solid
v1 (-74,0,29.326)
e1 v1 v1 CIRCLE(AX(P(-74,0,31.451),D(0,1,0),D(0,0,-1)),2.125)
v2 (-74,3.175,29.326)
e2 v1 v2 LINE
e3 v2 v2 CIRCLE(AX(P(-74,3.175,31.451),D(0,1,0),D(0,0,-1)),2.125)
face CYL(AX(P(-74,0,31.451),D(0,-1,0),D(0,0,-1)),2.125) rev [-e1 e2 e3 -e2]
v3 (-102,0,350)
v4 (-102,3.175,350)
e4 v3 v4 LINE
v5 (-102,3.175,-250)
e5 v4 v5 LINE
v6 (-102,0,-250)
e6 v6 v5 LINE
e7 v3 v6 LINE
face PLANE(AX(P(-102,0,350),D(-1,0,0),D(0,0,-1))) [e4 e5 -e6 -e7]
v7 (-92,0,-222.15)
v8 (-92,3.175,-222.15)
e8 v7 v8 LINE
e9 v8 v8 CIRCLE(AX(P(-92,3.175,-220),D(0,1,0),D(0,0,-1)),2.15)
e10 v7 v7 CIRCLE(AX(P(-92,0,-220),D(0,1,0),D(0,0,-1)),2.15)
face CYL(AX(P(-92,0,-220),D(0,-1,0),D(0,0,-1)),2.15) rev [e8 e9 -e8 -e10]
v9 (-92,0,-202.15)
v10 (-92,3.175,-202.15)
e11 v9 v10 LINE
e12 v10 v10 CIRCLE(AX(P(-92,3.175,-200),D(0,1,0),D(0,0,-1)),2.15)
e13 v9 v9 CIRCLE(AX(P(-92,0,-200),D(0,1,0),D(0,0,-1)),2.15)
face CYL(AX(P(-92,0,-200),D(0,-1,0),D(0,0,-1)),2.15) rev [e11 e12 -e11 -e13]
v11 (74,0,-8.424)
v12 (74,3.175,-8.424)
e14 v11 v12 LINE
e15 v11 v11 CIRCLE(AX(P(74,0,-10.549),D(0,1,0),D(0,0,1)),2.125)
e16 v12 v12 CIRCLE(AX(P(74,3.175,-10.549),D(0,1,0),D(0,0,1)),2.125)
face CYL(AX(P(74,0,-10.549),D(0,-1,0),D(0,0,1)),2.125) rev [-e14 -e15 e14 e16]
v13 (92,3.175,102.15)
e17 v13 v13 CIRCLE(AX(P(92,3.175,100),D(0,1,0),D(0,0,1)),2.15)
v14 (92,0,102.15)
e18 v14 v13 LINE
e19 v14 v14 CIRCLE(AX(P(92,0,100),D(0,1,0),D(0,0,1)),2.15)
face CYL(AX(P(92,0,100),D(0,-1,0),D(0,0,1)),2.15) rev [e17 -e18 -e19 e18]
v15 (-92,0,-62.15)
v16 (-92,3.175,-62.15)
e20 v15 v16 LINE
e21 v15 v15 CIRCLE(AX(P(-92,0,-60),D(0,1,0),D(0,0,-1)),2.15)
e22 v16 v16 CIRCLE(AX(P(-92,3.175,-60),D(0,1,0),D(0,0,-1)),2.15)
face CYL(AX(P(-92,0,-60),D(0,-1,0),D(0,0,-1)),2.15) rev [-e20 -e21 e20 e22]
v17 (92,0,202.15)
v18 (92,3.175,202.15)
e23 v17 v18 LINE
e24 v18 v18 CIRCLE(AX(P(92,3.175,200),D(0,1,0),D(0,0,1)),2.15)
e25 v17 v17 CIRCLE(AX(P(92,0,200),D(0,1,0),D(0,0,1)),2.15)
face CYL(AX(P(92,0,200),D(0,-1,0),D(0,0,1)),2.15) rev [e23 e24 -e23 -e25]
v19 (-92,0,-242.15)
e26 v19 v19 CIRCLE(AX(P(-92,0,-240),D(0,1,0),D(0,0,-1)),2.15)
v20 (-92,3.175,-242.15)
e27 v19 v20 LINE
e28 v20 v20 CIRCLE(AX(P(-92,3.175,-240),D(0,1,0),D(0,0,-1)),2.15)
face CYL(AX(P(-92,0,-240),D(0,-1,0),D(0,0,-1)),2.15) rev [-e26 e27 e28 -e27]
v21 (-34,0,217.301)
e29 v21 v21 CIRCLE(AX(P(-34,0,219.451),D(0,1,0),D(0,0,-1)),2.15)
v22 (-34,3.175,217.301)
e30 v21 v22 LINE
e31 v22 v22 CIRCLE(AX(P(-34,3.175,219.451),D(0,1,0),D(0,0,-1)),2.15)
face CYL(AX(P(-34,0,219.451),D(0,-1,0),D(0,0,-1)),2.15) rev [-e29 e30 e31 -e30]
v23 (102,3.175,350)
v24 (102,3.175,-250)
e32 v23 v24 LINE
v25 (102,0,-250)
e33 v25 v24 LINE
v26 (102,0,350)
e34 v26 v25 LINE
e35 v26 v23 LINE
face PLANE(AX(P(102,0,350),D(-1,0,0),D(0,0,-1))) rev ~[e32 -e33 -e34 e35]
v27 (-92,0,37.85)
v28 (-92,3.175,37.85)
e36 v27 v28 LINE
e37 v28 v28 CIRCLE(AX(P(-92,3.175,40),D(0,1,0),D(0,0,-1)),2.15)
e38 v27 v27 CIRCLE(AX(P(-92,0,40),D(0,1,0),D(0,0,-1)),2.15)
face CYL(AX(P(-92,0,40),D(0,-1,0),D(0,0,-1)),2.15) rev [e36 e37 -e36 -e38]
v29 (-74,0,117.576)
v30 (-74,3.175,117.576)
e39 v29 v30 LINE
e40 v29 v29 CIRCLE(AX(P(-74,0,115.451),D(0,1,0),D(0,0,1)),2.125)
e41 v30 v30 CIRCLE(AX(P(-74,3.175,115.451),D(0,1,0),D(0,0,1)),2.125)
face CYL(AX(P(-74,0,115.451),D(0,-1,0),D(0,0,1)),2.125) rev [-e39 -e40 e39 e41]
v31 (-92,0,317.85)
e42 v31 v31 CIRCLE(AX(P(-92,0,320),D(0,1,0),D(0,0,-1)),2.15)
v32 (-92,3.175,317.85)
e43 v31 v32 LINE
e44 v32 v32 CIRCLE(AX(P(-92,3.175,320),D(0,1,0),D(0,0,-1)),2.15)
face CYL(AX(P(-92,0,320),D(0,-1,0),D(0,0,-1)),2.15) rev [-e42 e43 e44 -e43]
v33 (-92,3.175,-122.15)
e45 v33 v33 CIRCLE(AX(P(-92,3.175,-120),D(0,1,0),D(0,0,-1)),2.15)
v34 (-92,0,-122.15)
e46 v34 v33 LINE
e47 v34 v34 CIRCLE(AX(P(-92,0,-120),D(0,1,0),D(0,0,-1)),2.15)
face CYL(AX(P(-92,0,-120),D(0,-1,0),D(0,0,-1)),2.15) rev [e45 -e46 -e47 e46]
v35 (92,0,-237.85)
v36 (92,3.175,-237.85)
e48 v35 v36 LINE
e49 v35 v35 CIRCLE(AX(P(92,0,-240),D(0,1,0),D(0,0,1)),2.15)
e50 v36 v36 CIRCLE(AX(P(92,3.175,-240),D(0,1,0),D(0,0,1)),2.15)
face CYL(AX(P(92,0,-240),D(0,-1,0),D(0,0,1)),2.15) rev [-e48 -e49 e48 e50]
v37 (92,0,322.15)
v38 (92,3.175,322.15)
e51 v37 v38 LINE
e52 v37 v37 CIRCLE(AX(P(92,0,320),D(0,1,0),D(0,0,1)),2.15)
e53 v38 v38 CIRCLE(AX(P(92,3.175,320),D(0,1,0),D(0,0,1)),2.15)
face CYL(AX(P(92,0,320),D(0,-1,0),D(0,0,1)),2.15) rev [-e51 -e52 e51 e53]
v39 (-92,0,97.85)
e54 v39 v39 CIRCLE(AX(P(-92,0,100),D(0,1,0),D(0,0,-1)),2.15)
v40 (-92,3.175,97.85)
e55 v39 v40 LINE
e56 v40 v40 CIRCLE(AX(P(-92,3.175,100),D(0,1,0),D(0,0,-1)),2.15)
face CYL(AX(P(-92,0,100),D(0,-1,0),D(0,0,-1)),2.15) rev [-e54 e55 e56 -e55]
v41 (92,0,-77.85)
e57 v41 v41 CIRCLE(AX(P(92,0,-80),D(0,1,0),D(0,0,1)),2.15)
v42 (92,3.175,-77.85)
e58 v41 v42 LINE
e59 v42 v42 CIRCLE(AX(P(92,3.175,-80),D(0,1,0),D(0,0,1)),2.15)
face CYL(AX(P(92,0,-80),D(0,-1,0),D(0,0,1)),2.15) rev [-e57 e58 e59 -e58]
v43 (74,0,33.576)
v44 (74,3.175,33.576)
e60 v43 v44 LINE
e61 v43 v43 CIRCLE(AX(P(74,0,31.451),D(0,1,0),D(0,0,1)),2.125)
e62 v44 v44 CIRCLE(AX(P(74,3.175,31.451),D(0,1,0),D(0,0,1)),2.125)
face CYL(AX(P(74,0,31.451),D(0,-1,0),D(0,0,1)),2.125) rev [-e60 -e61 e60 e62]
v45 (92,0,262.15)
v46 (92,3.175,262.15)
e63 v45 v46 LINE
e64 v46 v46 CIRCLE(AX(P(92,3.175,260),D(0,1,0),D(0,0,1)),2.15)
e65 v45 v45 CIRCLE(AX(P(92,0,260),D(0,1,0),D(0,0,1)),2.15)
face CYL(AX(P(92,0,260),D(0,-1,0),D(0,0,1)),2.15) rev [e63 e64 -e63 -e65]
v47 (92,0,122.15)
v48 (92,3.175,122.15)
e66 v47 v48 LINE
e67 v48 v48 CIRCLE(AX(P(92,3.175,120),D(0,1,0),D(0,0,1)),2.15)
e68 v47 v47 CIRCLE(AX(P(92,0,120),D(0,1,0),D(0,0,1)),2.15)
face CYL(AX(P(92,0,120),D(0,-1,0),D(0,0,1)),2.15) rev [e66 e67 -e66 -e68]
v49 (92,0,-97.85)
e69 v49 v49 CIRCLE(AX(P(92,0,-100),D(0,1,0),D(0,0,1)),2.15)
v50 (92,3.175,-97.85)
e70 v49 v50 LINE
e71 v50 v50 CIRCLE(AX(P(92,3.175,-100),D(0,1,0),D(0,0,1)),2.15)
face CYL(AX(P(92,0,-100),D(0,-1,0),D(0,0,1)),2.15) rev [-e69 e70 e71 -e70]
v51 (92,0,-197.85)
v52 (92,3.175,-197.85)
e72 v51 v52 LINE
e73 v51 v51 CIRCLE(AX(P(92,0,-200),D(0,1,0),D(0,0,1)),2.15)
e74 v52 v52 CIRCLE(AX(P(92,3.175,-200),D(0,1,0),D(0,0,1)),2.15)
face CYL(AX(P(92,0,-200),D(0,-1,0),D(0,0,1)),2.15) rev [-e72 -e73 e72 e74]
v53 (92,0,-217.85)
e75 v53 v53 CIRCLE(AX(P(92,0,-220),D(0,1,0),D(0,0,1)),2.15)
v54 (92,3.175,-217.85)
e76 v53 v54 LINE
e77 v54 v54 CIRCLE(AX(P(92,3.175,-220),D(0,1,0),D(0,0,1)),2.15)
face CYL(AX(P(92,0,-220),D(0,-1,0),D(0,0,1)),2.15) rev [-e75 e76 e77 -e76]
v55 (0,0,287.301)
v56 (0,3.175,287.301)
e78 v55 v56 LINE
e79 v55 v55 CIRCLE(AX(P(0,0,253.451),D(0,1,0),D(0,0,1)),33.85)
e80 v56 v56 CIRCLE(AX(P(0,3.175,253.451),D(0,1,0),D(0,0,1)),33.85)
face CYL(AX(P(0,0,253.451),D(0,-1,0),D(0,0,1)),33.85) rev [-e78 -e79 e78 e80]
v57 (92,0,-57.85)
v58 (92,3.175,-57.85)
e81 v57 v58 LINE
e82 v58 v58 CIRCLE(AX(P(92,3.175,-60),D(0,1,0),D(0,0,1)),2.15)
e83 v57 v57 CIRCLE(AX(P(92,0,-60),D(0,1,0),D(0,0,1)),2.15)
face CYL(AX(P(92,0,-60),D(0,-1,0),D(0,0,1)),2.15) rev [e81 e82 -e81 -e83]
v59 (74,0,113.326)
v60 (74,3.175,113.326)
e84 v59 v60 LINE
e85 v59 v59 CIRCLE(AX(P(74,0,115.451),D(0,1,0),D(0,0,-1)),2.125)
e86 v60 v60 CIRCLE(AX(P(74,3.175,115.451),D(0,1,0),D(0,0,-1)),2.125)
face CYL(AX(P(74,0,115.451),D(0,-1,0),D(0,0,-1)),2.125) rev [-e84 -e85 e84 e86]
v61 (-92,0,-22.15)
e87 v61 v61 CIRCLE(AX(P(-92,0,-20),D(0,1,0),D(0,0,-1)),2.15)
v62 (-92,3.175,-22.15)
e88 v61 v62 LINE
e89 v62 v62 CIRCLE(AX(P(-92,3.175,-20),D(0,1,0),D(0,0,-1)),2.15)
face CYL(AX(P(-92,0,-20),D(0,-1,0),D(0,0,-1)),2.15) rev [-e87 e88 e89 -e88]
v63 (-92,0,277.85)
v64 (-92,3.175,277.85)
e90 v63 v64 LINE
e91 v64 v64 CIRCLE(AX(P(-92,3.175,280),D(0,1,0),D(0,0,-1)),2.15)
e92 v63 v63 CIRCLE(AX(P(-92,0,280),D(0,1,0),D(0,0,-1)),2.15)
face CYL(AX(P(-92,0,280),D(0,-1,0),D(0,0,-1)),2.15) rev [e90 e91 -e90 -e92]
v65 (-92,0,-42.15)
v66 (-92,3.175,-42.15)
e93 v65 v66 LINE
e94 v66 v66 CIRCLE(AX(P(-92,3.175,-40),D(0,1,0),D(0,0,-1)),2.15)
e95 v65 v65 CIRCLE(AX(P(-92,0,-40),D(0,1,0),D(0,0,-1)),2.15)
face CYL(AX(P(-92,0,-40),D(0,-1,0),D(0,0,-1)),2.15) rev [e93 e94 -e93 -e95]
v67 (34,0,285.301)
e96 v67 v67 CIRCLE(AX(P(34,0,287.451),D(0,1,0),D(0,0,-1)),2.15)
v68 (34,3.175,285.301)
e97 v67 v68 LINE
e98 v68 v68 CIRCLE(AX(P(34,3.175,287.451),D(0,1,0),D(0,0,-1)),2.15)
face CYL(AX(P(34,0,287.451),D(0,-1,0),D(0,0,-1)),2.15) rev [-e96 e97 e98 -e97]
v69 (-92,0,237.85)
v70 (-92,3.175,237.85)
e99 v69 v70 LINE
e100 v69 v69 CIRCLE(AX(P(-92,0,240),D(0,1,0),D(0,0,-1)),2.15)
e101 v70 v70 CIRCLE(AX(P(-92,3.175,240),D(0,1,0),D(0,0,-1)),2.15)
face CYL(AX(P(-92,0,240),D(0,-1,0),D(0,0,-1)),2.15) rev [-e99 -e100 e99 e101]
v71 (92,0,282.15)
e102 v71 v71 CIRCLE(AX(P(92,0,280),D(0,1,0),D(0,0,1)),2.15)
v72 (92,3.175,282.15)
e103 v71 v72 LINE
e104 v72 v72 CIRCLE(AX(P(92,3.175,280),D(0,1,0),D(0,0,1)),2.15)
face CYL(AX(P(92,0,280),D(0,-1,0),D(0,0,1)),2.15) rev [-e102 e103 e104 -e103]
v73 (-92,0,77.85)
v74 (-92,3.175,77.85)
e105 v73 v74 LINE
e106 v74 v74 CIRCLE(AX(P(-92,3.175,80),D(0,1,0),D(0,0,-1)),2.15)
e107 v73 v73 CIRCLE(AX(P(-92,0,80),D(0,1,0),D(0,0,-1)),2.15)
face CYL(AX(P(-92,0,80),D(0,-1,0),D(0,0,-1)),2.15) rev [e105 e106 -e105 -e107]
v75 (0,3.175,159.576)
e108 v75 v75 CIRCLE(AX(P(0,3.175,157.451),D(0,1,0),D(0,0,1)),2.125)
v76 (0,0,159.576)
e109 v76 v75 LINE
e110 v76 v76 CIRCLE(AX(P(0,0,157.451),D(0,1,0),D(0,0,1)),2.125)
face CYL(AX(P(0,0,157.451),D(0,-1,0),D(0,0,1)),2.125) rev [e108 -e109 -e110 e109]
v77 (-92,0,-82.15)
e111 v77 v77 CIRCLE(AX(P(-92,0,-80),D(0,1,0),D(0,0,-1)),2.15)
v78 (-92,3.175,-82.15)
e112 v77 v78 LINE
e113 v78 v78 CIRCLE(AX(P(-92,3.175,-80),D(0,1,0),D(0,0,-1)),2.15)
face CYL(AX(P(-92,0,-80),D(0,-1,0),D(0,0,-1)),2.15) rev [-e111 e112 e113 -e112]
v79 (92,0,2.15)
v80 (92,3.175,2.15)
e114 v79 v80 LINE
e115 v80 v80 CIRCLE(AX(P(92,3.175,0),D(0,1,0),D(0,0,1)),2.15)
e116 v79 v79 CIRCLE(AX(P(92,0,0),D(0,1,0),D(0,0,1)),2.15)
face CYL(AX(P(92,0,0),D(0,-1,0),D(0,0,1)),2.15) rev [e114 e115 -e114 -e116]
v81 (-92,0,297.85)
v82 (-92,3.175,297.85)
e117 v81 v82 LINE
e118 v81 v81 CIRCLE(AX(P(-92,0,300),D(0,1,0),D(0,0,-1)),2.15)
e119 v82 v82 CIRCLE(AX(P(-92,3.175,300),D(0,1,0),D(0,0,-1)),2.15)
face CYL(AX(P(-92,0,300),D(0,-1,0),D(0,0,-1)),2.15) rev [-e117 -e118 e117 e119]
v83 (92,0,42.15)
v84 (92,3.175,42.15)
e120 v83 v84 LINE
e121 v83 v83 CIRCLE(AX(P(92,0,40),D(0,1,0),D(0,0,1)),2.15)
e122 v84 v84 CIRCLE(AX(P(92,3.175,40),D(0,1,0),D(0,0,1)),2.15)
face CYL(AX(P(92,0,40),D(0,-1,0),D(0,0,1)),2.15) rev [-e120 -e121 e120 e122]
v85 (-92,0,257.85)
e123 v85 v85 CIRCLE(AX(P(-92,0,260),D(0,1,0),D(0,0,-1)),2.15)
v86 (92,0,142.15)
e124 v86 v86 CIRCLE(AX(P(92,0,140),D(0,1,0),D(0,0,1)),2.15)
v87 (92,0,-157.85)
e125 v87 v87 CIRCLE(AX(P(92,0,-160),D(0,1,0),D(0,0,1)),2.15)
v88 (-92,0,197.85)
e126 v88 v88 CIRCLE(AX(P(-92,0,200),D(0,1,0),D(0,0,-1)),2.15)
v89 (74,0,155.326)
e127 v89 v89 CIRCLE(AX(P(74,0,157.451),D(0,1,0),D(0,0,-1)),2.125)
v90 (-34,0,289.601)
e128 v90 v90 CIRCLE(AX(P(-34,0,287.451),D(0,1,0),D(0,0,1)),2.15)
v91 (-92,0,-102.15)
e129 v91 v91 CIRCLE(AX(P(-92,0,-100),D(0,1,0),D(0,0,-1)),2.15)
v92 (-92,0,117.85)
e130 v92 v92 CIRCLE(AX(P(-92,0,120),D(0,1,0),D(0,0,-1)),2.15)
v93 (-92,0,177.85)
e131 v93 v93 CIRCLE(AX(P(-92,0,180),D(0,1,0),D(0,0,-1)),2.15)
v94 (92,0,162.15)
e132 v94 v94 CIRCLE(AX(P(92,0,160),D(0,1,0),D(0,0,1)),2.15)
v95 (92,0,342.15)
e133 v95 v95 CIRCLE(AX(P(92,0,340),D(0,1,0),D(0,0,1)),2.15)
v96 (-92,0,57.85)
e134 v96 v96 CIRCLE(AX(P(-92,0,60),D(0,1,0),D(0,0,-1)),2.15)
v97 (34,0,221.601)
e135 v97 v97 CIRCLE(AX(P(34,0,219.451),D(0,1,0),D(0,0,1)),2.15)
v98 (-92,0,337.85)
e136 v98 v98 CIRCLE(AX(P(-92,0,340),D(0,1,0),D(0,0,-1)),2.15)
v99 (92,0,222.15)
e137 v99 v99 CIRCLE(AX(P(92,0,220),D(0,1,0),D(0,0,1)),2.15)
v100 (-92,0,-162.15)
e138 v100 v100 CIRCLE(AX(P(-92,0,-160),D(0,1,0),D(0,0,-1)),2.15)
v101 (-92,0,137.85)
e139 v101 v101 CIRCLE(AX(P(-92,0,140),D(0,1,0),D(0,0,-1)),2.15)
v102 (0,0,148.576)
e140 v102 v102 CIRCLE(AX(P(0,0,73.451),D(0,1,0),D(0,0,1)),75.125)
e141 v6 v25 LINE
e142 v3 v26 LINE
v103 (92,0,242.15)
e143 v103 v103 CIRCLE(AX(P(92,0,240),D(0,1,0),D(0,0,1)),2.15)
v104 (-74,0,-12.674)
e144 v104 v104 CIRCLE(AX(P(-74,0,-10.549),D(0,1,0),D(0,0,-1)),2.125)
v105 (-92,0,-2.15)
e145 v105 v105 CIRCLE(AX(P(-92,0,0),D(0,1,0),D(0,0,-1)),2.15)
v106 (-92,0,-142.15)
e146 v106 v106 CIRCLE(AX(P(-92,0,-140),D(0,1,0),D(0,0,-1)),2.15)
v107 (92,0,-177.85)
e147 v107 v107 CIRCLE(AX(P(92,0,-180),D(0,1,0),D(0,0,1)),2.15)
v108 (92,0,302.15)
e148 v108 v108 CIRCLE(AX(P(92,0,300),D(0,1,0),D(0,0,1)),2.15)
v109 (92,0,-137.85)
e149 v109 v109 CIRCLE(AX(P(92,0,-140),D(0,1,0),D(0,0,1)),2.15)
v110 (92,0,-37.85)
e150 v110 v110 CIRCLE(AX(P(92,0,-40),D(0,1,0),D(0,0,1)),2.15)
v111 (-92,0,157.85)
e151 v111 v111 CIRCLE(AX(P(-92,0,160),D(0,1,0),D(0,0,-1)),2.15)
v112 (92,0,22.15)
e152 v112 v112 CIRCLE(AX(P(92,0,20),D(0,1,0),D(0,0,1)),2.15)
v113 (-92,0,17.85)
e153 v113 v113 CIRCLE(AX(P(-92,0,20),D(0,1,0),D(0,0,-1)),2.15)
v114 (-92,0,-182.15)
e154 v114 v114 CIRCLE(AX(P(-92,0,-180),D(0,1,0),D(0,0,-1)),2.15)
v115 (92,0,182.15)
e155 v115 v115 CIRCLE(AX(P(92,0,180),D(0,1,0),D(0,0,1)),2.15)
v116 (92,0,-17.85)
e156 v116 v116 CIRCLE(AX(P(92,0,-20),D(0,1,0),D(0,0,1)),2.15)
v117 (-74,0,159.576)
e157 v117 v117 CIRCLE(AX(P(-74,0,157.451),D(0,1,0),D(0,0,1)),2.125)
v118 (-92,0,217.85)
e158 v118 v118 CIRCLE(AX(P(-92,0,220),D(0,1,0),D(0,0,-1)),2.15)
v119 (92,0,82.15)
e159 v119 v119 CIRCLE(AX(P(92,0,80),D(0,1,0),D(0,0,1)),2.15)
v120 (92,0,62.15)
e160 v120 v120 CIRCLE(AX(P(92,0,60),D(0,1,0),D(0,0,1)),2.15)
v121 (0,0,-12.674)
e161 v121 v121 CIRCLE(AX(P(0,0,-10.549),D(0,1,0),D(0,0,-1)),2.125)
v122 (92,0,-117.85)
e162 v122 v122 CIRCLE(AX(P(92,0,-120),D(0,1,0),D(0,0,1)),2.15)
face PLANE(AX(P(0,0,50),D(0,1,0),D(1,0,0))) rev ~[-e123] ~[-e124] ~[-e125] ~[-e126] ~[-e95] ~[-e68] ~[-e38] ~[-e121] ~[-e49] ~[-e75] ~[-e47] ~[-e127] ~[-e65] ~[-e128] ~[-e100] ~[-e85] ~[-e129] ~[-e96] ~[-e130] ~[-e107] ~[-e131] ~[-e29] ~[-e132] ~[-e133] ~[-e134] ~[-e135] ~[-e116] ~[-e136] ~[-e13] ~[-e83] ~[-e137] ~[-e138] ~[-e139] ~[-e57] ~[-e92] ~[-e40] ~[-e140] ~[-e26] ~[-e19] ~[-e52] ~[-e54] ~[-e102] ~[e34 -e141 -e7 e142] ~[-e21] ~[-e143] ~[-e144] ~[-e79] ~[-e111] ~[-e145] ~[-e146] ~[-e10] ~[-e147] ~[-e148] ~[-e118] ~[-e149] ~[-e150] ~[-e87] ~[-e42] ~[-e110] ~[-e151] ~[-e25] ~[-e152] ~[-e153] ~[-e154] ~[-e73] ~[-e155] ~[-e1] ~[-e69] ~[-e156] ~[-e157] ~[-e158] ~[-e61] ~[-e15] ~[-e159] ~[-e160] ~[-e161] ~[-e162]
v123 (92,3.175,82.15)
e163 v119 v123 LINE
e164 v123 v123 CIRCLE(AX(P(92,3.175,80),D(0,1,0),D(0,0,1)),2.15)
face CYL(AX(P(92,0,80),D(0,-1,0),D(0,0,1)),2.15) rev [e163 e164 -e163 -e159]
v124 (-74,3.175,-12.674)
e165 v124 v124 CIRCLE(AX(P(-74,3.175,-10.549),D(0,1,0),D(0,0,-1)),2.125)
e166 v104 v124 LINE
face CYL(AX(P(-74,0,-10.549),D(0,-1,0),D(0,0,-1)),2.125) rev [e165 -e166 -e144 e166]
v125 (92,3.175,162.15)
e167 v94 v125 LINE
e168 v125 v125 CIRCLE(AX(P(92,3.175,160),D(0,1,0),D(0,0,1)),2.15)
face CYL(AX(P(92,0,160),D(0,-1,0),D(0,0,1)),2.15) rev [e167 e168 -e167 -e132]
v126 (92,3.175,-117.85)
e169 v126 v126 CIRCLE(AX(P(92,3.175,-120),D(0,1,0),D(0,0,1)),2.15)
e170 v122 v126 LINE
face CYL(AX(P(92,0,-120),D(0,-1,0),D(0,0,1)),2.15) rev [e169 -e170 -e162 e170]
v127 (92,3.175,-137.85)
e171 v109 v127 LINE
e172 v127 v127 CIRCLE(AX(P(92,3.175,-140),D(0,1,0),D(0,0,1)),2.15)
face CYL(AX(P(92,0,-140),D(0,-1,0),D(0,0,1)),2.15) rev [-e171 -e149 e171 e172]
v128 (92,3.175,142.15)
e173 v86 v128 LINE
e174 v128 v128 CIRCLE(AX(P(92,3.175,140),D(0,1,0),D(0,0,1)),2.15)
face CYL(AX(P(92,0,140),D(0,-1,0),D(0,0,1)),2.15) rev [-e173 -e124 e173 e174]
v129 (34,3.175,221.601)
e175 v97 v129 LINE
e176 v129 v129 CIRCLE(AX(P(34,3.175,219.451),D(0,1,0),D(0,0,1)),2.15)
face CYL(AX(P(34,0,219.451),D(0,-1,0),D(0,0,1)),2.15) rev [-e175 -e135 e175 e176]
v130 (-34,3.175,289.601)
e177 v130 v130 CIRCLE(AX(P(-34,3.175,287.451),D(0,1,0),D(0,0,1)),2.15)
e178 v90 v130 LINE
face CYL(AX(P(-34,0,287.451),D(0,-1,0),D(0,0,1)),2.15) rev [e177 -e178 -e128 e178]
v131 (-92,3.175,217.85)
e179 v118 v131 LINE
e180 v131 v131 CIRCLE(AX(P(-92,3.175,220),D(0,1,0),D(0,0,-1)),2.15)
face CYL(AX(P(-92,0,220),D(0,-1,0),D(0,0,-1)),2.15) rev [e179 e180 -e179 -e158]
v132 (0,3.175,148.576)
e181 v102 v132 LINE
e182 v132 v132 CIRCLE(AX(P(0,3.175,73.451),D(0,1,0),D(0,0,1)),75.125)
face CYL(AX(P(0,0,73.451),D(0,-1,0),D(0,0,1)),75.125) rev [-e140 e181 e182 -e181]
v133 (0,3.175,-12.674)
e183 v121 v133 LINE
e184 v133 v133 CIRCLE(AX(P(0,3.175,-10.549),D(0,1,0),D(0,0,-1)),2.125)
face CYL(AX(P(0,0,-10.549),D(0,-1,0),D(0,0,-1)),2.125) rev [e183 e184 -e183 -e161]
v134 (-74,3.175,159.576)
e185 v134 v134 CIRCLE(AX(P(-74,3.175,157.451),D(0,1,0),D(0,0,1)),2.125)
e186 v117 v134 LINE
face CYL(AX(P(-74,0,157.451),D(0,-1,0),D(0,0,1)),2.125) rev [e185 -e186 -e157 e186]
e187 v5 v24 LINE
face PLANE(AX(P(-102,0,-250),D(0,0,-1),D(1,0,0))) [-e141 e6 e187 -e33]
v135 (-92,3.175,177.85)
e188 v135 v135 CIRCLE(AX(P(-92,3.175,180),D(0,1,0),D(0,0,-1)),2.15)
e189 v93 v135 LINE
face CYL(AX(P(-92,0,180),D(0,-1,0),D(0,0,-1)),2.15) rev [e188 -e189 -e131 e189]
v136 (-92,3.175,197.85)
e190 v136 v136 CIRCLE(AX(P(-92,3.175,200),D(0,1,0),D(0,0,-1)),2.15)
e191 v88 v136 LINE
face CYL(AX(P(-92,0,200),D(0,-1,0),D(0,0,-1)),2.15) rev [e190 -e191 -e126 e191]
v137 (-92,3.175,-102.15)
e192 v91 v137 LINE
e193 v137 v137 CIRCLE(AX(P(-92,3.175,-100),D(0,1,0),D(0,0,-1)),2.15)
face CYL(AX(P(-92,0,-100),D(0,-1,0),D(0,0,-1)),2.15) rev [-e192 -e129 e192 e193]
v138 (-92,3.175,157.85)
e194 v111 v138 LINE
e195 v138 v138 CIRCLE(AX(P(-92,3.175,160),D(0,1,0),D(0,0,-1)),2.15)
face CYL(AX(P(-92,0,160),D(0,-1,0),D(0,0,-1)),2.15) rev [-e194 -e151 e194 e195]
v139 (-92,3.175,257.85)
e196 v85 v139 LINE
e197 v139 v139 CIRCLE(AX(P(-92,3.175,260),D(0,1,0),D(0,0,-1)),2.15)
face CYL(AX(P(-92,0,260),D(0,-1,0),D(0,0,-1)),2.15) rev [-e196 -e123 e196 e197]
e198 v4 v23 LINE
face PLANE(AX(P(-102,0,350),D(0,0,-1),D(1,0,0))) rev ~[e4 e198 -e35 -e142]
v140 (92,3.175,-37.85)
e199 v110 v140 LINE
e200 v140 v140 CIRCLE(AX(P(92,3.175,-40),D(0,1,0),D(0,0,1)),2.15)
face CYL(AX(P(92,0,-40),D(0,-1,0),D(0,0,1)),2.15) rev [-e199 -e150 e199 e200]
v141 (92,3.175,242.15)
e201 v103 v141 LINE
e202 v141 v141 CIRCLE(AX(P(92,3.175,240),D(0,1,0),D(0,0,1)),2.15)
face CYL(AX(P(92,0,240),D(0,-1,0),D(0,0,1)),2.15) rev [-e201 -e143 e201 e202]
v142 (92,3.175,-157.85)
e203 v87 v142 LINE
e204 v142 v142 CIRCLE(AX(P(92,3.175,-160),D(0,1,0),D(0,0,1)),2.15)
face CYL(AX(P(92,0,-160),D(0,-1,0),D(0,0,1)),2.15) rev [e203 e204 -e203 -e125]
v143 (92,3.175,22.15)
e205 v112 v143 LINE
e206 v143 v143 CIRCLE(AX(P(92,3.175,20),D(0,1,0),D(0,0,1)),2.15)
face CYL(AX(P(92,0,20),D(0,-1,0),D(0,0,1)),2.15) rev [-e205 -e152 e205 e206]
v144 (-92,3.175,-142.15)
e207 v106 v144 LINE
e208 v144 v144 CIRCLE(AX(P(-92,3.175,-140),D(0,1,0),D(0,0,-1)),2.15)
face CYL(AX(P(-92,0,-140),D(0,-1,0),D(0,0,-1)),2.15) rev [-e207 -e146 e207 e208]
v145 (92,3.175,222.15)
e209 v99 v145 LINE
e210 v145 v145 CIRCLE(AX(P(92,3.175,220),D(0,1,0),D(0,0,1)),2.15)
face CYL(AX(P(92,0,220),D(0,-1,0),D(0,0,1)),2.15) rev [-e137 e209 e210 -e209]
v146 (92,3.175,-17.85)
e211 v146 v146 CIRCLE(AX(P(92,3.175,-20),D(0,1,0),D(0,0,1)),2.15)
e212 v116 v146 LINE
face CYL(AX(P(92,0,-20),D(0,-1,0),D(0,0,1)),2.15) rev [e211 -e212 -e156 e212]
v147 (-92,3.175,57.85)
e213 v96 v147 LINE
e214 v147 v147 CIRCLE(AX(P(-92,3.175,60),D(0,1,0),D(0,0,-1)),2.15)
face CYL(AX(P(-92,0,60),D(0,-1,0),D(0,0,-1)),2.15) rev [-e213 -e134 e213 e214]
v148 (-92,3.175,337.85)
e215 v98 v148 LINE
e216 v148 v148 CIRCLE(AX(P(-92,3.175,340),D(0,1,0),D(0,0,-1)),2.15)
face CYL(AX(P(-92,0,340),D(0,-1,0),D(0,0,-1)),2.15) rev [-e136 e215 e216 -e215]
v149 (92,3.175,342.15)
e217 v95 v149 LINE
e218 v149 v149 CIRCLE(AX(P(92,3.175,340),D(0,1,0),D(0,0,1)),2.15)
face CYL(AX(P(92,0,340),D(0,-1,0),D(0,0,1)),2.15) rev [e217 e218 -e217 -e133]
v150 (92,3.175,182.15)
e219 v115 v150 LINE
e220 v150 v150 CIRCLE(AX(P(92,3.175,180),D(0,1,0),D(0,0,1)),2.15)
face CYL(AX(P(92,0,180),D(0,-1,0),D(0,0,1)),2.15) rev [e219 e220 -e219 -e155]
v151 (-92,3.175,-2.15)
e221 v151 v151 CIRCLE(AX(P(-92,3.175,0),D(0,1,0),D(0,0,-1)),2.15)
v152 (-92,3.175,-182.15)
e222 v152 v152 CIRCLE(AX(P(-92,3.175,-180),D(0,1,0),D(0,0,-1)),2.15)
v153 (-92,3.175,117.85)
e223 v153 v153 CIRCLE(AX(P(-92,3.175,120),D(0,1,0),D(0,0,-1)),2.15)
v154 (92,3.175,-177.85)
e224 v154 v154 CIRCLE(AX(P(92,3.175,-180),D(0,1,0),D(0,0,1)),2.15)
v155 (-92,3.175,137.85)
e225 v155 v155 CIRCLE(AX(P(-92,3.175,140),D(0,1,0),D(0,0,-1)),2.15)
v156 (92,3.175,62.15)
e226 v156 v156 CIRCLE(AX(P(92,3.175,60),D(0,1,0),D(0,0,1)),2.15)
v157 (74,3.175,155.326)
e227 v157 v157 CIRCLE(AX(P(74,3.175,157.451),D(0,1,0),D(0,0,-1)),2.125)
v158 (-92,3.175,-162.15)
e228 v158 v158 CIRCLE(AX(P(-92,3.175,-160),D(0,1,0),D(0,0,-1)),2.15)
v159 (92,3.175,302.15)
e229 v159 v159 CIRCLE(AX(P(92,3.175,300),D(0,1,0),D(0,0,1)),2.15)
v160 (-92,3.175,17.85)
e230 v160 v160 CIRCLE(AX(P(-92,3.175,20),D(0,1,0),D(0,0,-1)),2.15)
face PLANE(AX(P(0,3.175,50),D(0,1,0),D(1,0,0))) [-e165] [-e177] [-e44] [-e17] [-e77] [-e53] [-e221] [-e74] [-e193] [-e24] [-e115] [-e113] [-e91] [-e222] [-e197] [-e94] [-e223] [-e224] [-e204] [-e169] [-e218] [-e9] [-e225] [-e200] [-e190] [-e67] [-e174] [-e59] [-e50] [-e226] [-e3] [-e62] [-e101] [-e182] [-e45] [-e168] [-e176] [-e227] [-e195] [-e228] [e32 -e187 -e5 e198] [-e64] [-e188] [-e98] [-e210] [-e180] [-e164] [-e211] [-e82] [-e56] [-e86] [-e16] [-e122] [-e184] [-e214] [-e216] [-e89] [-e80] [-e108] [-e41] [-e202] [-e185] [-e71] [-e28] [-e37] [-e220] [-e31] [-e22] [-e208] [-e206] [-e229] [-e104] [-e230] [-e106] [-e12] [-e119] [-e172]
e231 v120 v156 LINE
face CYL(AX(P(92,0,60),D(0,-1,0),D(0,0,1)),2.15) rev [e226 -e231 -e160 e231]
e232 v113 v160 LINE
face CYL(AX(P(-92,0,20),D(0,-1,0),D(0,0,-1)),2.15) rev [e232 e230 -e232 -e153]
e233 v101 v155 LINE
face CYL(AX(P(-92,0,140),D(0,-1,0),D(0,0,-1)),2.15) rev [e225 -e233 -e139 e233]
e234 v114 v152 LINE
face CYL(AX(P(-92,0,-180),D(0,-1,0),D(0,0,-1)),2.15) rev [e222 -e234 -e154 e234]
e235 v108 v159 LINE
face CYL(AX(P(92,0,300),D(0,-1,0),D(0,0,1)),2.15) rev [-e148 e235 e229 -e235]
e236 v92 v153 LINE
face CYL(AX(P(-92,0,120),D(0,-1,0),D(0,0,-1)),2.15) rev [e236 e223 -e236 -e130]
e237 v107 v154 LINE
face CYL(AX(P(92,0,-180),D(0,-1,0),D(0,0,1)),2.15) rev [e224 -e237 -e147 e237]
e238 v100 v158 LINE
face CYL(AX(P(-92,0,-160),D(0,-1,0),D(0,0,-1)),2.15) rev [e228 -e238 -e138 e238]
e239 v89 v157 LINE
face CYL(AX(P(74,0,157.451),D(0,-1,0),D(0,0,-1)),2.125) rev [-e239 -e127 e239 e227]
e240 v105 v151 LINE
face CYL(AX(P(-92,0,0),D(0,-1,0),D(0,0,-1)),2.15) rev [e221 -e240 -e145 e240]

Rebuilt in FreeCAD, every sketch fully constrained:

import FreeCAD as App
import Part
import Sketcher

V = App.Vector
Q = App.Units.Quantity

doc = App.newDocument("Part")
body = doc.addObject("PartDesign::Body", "Body")

# Sketch on XZ plane
sketch1 = body.newObject("Sketcher::SketchObject", "Sketch")
sketch1.AttachmentSupport = (doc.getObject("XZ_Plane"), [""])
sketch1.MapMode = "FlatFace"
sketch1.addGeometry(Part.LineSegment(V(-102, -250, 0), V(-102, 350, 0)), False)
sketch1.addGeometry(Part.LineSegment(V(-102, 350, 0), V(102, 350, 0)), False)
sketch1.addGeometry(Part.LineSegment(V(102, 350, 0), V(102, -250, 0)), False)
sketch1.addGeometry(Part.LineSegment(V(102, -250, 0), V(-102, -250, 0)), False)
sketch1.addGeometry(Part.Circle(V(-92, 340, 0), V(0, 0, 1), 2.1), False)
sketch1.addGeometry(Part.Circle(V(-92, 320, 0), V(0, 0, 1), 2.1), False)
sketch1.addGeometry(Part.Circle(V(-92, 300, 0), V(0, 0, 1), 2.1), False)
sketch1.addGeometry(Part.Circle(V(-92, 280, 0), V(0, 0, 1), 2.1), False)
sketch1.addGeometry(Part.Circle(V(-92, 260, 0), V(0, 0, 1), 2.1), False)
sketch1.addGeometry(Part.Circle(V(-92, 240, 0), V(0, 0, 1), 2.1), False)
sketch1.addGeometry(Part.Circle(V(-92, 220, 0), V(0, 0, 1), 2.1), False)
sketch1.addGeometry(Part.Circle(V(-92, 200, 0), V(0, 0, 1), 2.1), False)
sketch1.addGeometry(Part.Circle(V(-34, 287.5, 0), V(0, 0, 1), 2.1), False)
sketch1.addGeometry(Part.Circle(V(-34, 219.5, 0), V(0, 0, 1), 2.1), False)
sketch1.addGeometry(Part.Circle(V(0, 253.5, 0), V(0, 0, 1), 33.9), False)
sketch1.addGeometry(Part.Circle(V(-92, 180, 0), V(0, 0, 1), 2.1), False)
sketch1.addGeometry(Part.Circle(V(-92, 160, 0), V(0, 0, 1), 2.1), False)
sketch1.addGeometry(Part.Circle(V(-92, 140, 0), V(0, 0, 1), 2.1), False)
sketch1.addGeometry(Part.Circle(V(-74, 157.5, 0), V(0, 0, 1), 2.1), False)
sketch1.addGeometry(Part.Circle(V(-92, 120, 0), V(0, 0, 1), 2.1), False)
sketch1.addGeometry(Part.Circle(V(-92, 100, 0), V(0, 0, 1), 2.1), False)
sketch1.addGeometry(Part.Circle(V(-74, 115.5, 0), V(0, 0, 1), 2.1), False)
sketch1.addGeometry(Part.Circle(V(-92, 80, 0), V(0, 0, 1), 2.1), False)
sketch1.addGeometry(Part.Circle(V(-92, 60, 0), V(0, 0, 1), 2.1), False)
sketch1.addGeometry(Part.Circle(V(0, 157.5, 0), V(0, 0, 1), 2.1), False)
sketch1.addGeometry(Part.Circle(V(0, 73.5, 0), V(0, 0, 1), 75.1), False)
sketch1.addGeometry(Part.Circle(V(34, 287.5, 0), V(0, 0, 1), 2.1), False)
sketch1.addGeometry(Part.Circle(V(34, 219.5, 0), V(0, 0, 1), 2.1), False)
sketch1.addGeometry(Part.Circle(V(92, 340, 0), V(0, 0, 1), 2.1), False)
sketch1.addGeometry(Part.Circle(V(92, 320, 0), V(0, 0, 1), 2.1), False)
sketch1.addGeometry(Part.Circle(V(92, 300, 0), V(0, 0, 1), 2.1), False)
sketch1.addGeometry(Part.Circle(V(92, 280, 0), V(0, 0, 1), 2.1), False)
sketch1.addGeometry(Part.Circle(V(92, 260, 0), V(0, 0, 1), 2.1), False)
sketch1.addGeometry(Part.Circle(V(92, 240, 0), V(0, 0, 1), 2.1), False)
sketch1.addGeometry(Part.Circle(V(92, 220, 0), V(0, 0, 1), 2.1), False)
sketch1.addGeometry(Part.Circle(V(92, 200, 0), V(0, 0, 1), 2.1), False)
sketch1.addGeometry(Part.Circle(V(92, 180, 0), V(0, 0, 1), 2.1), False)
sketch1.addGeometry(Part.Circle(V(92, 160, 0), V(0, 0, 1), 2.1), False)
sketch1.addGeometry(Part.Circle(V(74, 157.5, 0), V(0, 0, 1), 2.1), False)
sketch1.addGeometry(Part.Circle(V(92, 140, 0), V(0, 0, 1), 2.1), False)
sketch1.addGeometry(Part.Circle(V(74, 115.5, 0), V(0, 0, 1), 2.1), False)
sketch1.addGeometry(Part.Circle(V(92, 120, 0), V(0, 0, 1), 2.1), False)
sketch1.addGeometry(Part.Circle(V(92, 100, 0), V(0, 0, 1), 2.1), False)
sketch1.addGeometry(Part.Circle(V(92, 80, 0), V(0, 0, 1), 2.1), False)
sketch1.addGeometry(Part.Circle(V(92, 60, 0), V(0, 0, 1), 2.1), False)
sketch1.addGeometry(Part.Circle(V(-92, 40, 0), V(0, 0, 1), 2.1), False)
sketch1.addGeometry(Part.Circle(V(-92, 20, 0), V(0, 0, 1), 2.1), False)
sketch1.addGeometry(Part.Circle(V(-74, 31.5, 0), V(0, 0, 1), 2.1), False)
sketch1.addGeometry(Part.Circle(V(-92, 0, 0), V(0, 0, 1), 2.1), False)
sketch1.addGeometry(Part.Circle(V(-92, -20, 0), V(0, 0, 1), 2.1), False)
sketch1.addGeometry(Part.Circle(V(-74, -10.5, 0), V(0, 0, 1), 2.1), False)
sketch1.addGeometry(Part.Circle(V(-92, -40, 0), V(0, 0, 1), 2.1), False)
sketch1.addGeometry(Part.Circle(V(-92, -60, 0), V(0, 0, 1), 2.1), False)
sketch1.addGeometry(Part.Circle(V(-92, -80, 0), V(0, 0, 1), 2.1), False)
sketch1.addGeometry(Part.Circle(V(0, -10.5, 0), V(0, 0, 1), 2.1), False)
sketch1.addGeometry(Part.Circle(V(-92, -100, 0), V(0, 0, 1), 2.1), False)
sketch1.addGeometry(Part.Circle(V(-92, -120, 0), V(0, 0, 1), 2.1), False)
sketch1.addGeometry(Part.Circle(V(-92, -140, 0), V(0, 0, 1), 2.1), False)
sketch1.addGeometry(Part.Circle(V(-92, -160, 0), V(0, 0, 1), 2.1), False)
sketch1.addGeometry(Part.Circle(V(-92, -180, 0), V(0, 0, 1), 2.1), False)
sketch1.addGeometry(Part.Circle(V(-92, -200, 0), V(0, 0, 1), 2.1), False)
sketch1.addGeometry(Part.Circle(V(-92, -220, 0), V(0, 0, 1), 2.1), False)
sketch1.addGeometry(Part.Circle(V(-92, -240, 0), V(0, 0, 1), 2.1), False)
sketch1.addGeometry(Part.Circle(V(74, 31.5, 0), V(0, 0, 1), 2.1), False)
sketch1.addGeometry(Part.Circle(V(92, 40, 0), V(0, 0, 1), 2.1), False)
sketch1.addGeometry(Part.Circle(V(92, 20, 0), V(0, 0, 1), 2.1), False)
sketch1.addGeometry(Part.Circle(V(74, -10.5, 0), V(0, 0, 1), 2.1), False)
sketch1.addGeometry(Part.Circle(V(92, 0, 0), V(0, 0, 1), 2.1), False)
sketch1.addGeometry(Part.Circle(V(92, -20, 0), V(0, 0, 1), 2.1), False)
sketch1.addGeometry(Part.Circle(V(92, -40, 0), V(0, 0, 1), 2.1), False)
sketch1.addGeometry(Part.Circle(V(92, -60, 0), V(0, 0, 1), 2.1), False)
sketch1.addGeometry(Part.Circle(V(92, -80, 0), V(0, 0, 1), 2.1), False)
sketch1.addGeometry(Part.Circle(V(92, -100, 0), V(0, 0, 1), 2.1), False)
sketch1.addGeometry(Part.Circle(V(92, -120, 0), V(0, 0, 1), 2.1), False)
sketch1.addGeometry(Part.Circle(V(92, -140, 0), V(0, 0, 1), 2.1), False)
sketch1.addGeometry(Part.Circle(V(92, -160, 0), V(0, 0, 1), 2.1), False)
sketch1.addGeometry(Part.Circle(V(92, -180, 0), V(0, 0, 1), 2.1), False)
sketch1.addGeometry(Part.Circle(V(92, -200, 0), V(0, 0, 1), 2.1), False)
sketch1.addGeometry(Part.Circle(V(92, -220, 0), V(0, 0, 1), 2.1), False)
sketch1.addGeometry(Part.Circle(V(92, -240, 0), V(0, 0, 1), 2.1), False)
sketch1.addConstraint(Sketcher.Constraint("Coincident", 0, 2, 1, 1))
sketch1.addConstraint(Sketcher.Constraint("Coincident", 1, 2, 2, 1))
sketch1.addConstraint(Sketcher.Constraint("Coincident", 2, 2, 3, 1))
sketch1.addConstraint(Sketcher.Constraint("Coincident", 3, 2, 0, 1))
sketch1.addConstraint(Sketcher.Constraint("Vertical", 0))
sketch1.addConstraint(Sketcher.Constraint("Horizontal", 1))
sketch1.addConstraint(Sketcher.Constraint("Vertical", 2))
sketch1.addConstraint(Sketcher.Constraint("Horizontal", 3))
sketch1.addConstraint(Sketcher.Constraint("Equal", 4, 5))
sketch1.addConstraint(Sketcher.Constraint("Equal", 5, 6))
sketch1.addConstraint(Sketcher.Constraint("Equal", 6, 7))
sketch1.addConstraint(Sketcher.Constraint("Equal", 7, 8))
sketch1.addConstraint(Sketcher.Constraint("Equal", 8, 9))
sketch1.addConstraint(Sketcher.Constraint("Equal", 9, 10))
sketch1.addConstraint(Sketcher.Constraint("Equal", 10, 11))
sketch1.addConstraint(Sketcher.Constraint("Equal", 11, 12))
sketch1.addConstraint(Sketcher.Constraint("Equal", 12, 13))
sketch1.addConstraint(Sketcher.Constraint("Equal", 13, 15))
sketch1.addConstraint(Sketcher.Constraint("Equal", 15, 16))
sketch1.addConstraint(Sketcher.Constraint("Equal", 16, 17))
sketch1.addConstraint(Sketcher.Constraint("Equal", 17, 19))
sketch1.addConstraint(Sketcher.Constraint("Equal", 19, 20))
sketch1.addConstraint(Sketcher.Constraint("Equal", 18, 21))
sketch1.addConstraint(Sketcher.Constraint("Equal", 20, 22))
sketch1.addConstraint(Sketcher.Constraint("Equal", 22, 23))
sketch1.addConstraint(Sketcher.Constraint("Equal", 21, 24))
sketch1.addConstraint(Sketcher.Constraint("Equal", 23, 26))
sketch1.addConstraint(Sketcher.Constraint("Equal", 26, 27))
sketch1.addConstraint(Sketcher.Constraint("Equal", 27, 28))
sketch1.addConstraint(Sketcher.Constraint("Equal", 28, 29))
sketch1.addConstraint(Sketcher.Constraint("Equal", 29, 30))
sketch1.addConstraint(Sketcher.Constraint("Equal", 30, 31))
sketch1.addConstraint(Sketcher.Constraint("Equal", 31, 32))
sketch1.addConstraint(Sketcher.Constraint("Equal", 32, 33))
sketch1.addConstraint(Sketcher.Constraint("Equal", 33, 34))
sketch1.addConstraint(Sketcher.Constraint("Equal", 34, 35))
sketch1.addConstraint(Sketcher.Constraint("Equal", 35, 36))
sketch1.addConstraint(Sketcher.Constraint("Equal", 36, 37))
sketch1.addConstraint(Sketcher.Constraint("Equal", 24, 38))
sketch1.addConstraint(Sketcher.Constraint("Equal", 37, 39))
sketch1.addConstraint(Sketcher.Constraint("Equal", 38, 40))
sketch1.addConstraint(Sketcher.Constraint("Equal", 39, 41))
sketch1.addConstraint(Sketcher.Constraint("Equal", 41, 42))
sketch1.addConstraint(Sketcher.Constraint("Equal", 42, 43))
sketch1.addConstraint(Sketcher.Constraint("Equal", 43, 44))
sketch1.addConstraint(Sketcher.Constraint("Equal", 44, 45))
sketch1.addConstraint(Sketcher.Constraint("Equal", 45, 46))
sketch1.addConstraint(Sketcher.Constraint("Equal", 40, 47))
sketch1.addConstraint(Sketcher.Constraint("Equal", 46, 48))
sketch1.addConstraint(Sketcher.Constraint("Equal", 48, 49))
sketch1.addConstraint(Sketcher.Constraint("Equal", 47, 50))
sketch1.addConstraint(Sketcher.Constraint("Equal", 49, 51))
sketch1.addConstraint(Sketcher.Constraint("Equal", 51, 52))
sketch1.addConstraint(Sketcher.Constraint("Equal", 52, 53))
sketch1.addConstraint(Sketcher.Constraint("Equal", 50, 54))
sketch1.addConstraint(Sketcher.Constraint("Equal", 53, 55))
sketch1.addConstraint(Sketcher.Constraint("Equal", 55, 56))
sketch1.addConstraint(Sketcher.Constraint("Equal", 56, 57))
sketch1.addConstraint(Sketcher.Constraint("Equal", 57, 58))
sketch1.addConstraint(Sketcher.Constraint("Equal", 58, 59))
sketch1.addConstraint(Sketcher.Constraint("Equal", 59, 60))
sketch1.addConstraint(Sketcher.Constraint("Equal", 60, 61))
sketch1.addConstraint(Sketcher.Constraint("Equal", 61, 62))
sketch1.addConstraint(Sketcher.Constraint("Equal", 54, 63))
sketch1.addConstraint(Sketcher.Constraint("Equal", 62, 64))
sketch1.addConstraint(Sketcher.Constraint("Equal", 64, 65))
sketch1.addConstraint(Sketcher.Constraint("Equal", 63, 66))
sketch1.addConstraint(Sketcher.Constraint("Equal", 65, 67))
sketch1.addConstraint(Sketcher.Constraint("Equal", 67, 68))
sketch1.addConstraint(Sketcher.Constraint("Equal", 68, 69))
sketch1.addConstraint(Sketcher.Constraint("Equal", 69, 70))
sketch1.addConstraint(Sketcher.Constraint("Equal", 70, 71))
sketch1.addConstraint(Sketcher.Constraint("Equal", 71, 72))
sketch1.addConstraint(Sketcher.Constraint("Equal", 72, 73))
sketch1.addConstraint(Sketcher.Constraint("Equal", 73, 74))
sketch1.addConstraint(Sketcher.Constraint("Equal", 74, 75))
sketch1.addConstraint(Sketcher.Constraint("Equal", 75, 76))
sketch1.addConstraint(Sketcher.Constraint("Equal", 76, 77))
sketch1.addConstraint(Sketcher.Constraint("Equal", 77, 78))
sketch1.addConstraint(Sketcher.Constraint("Equal", 78, 79))
sketch1.addConstraint(Sketcher.Constraint("Symmetric", 44, 3, 52, 3, -1, 1))
sketch1.addConstraint(Sketcher.Constraint("Symmetric", 43, 3, 53, 3, -1, 1))
sketch1.addConstraint(Sketcher.Constraint("Symmetric", 42, 3, 55, 3, -1, 1))
sketch1.addConstraint(Sketcher.Constraint("Symmetric", 41, 3, 56, 3, -1, 1))
sketch1.addConstraint(Sketcher.Constraint("Symmetric", 39, 3, 57, 3, -1, 1))
sketch1.addConstraint(Sketcher.Constraint("Symmetric", 37, 3, 58, 3, -1, 1))
sketch1.addConstraint(Sketcher.Constraint("Symmetric", 36, 3, 59, 3, -1, 1))
sketch1.addConstraint(Sketcher.Constraint("Symmetric", 35, 3, 60, 3, -1, 1))
sketch1.addConstraint(Sketcher.Constraint("Symmetric", 34, 3, 61, 3, -1, 1))
sketch1.addConstraint(Sketcher.Constraint("Symmetric", 33, 3, 62, 3, -1, 1))
sketch1.addConstraint(Sketcher.Constraint("Symmetric", 51, 3, 64, 3, -1, 1))
sketch1.addConstraint(Sketcher.Constraint("Symmetric", 49, 3, 65, 3, -1, 1))
sketch1.addConstraint(Sketcher.Constraint("Symmetric", 48, 3, 67, 3, -1, 1))
sketch1.addConstraint(Sketcher.Constraint("Symmetric", 46, 3, 68, 3, -1, 1))
sketch1.addConstraint(Sketcher.Constraint("Symmetric", 45, 3, 69, 3, -1, 1))
sketch1.addConstraint(Sketcher.Constraint("Symmetric", 23, 3, 70, 3, -1, 1))
sketch1.addConstraint(Sketcher.Constraint("Symmetric", 22, 3, 71, 3, -1, 1))
sketch1.addConstraint(Sketcher.Constraint("Symmetric", 20, 3, 72, 3, -1, 1))
sketch1.addConstraint(Sketcher.Constraint("Symmetric", 19, 3, 73, 3, -1, 1))
sketch1.addConstraint(Sketcher.Constraint("Symmetric", 17, 3, 74, 3, -1, 1))
sketch1.addConstraint(Sketcher.Constraint("Symmetric", 16, 3, 75, 3, -1, 1))
sketch1.addConstraint(Sketcher.Constraint("Symmetric", 15, 3, 76, 3, -1, 1))
sketch1.addConstraint(Sketcher.Constraint("Symmetric", 11, 3, 77, 3, -1, 1))
sketch1.addConstraint(Sketcher.Constraint("Symmetric", 10, 3, 78, 3, -1, 1))
sketch1.addConstraint(Sketcher.Constraint("Symmetric", 9, 3, 79, 3, -1, 1))
sketch1.addConstraint(Sketcher.Constraint("Symmetric", 12, 3, 26, 3, -2))
sketch1.addConstraint(Sketcher.Constraint("Symmetric", 13, 3, 27, 3, -2))
sketch1.addConstraint(Sketcher.Constraint("Symmetric", 4, 3, 28, 3, -2))
sketch1.addConstraint(Sketcher.Constraint("Symmetric", 5, 3, 29, 3, -2))
sketch1.addConstraint(Sketcher.Constraint("Symmetric", 6, 3, 30, 3, -2))
sketch1.addConstraint(Sketcher.Constraint("Symmetric", 7, 3, 31, 3, -2))
sketch1.addConstraint(Sketcher.Constraint("Symmetric", 8, 3, 32, 3, -2))
sketch1.addConstraint(Sketcher.Constraint("Symmetric", 9, 3, 33, 3, -2))
sketch1.addConstraint(Sketcher.Constraint("Symmetric", 10, 3, 34, 3, -2))
sketch1.addConstraint(Sketcher.Constraint("Symmetric", 11, 3, 35, 3, -2))
sketch1.addConstraint(Sketcher.Constraint("Symmetric", 15, 3, 36, 3, -2))
sketch1.addConstraint(Sketcher.Constraint("Symmetric", 16, 3, 37, 3, -2))
sketch1.addConstraint(Sketcher.Constraint("Symmetric", 18, 3, 38, 3, -2))
sketch1.addConstraint(Sketcher.Constraint("Symmetric", 17, 3, 39, 3, -2))
sketch1.addConstraint(Sketcher.Constraint("Symmetric", 21, 3, 40, 3, -2))
sketch1.addConstraint(Sketcher.Constraint("Symmetric", 19, 3, 41, 3, -2))
sketch1.addConstraint(Sketcher.Constraint("Symmetric", 20, 3, 42, 3, -2))
sketch1.addConstraint(Sketcher.Constraint("Symmetric", 22, 3, 43, 3, -2))
sketch1.addConstraint(Sketcher.Constraint("Symmetric", 23, 3, 44, 3, -2))
sketch1.addConstraint(Sketcher.Constraint("Symmetric", 47, 3, 63, 3, -2))
sketch1.addConstraint(Sketcher.Constraint("Symmetric", 45, 3, 64, 3, -2))
sketch1.addConstraint(Sketcher.Constraint("Symmetric", 46, 3, 65, 3, -2))
sketch1.addConstraint(Sketcher.Constraint("Symmetric", 50, 3, 66, 3, -2))
sketch1.addConstraint(Sketcher.Constraint("PointOnObject", 14, 3, -2))
sketch1.addConstraint(Sketcher.Constraint("PointOnObject", 24, 3, -2))
sketch1.addConstraint(Sketcher.Constraint("PointOnObject", 25, 3, -2))
sketch1.addConstraint(Sketcher.Constraint("PointOnObject", 48, 3, -1))
sketch1.addConstraint(Sketcher.Constraint("PointOnObject", 54, 3, -2))
sketch1.addConstraint(Sketcher.Constraint("Horizontal", 18, 3, 24, 3))
sketch1.addConstraint(Sketcher.Constraint("Horizontal", 50, 3, 54, 3))
sketch1.addConstraint(Sketcher.Constraint("Vertical", 4, 3, 5, 3))
sketch1.addConstraint(Sketcher.Constraint("Vertical", 5, 3, 6, 3))
sketch1.addConstraint(Sketcher.Constraint("Vertical", 6, 3, 7, 3))
sketch1.addConstraint(Sketcher.Constraint("Vertical", 7, 3, 8, 3))
sketch1.addConstraint(Sketcher.Constraint("Vertical", 8, 3, 9, 3))
sketch1.addConstraint(Sketcher.Constraint("Vertical", 9, 3, 10, 3))
sketch1.addConstraint(Sketcher.Constraint("Vertical", 10, 3, 11, 3))
sketch1.addConstraint(Sketcher.Constraint("Vertical", 12, 3, 13, 3))
sketch1.addConstraint(Sketcher.Constraint("Vertical", 11, 3, 15, 3))
sketch1.addConstraint(Sketcher.Constraint("Vertical", 15, 3, 16, 3))
sketch1.addConstraint(Sketcher.Constraint("Vertical", 16, 3, 17, 3))
sketch1.addConstraint(Sketcher.Constraint("Vertical", 17, 3, 19, 3))
sketch1.addConstraint(Sketcher.Constraint("Vertical", 19, 3, 20, 3))
sketch1.addConstraint(Sketcher.Constraint("Vertical", 18, 3, 21, 3))
sketch1.addConstraint(Sketcher.Constraint("Vertical", 20, 3, 22, 3))
sketch1.addConstraint(Sketcher.Constraint("Vertical", 22, 3, 23, 3))
sketch1.addConstraint(Sketcher.Constraint("Vertical", 23, 3, 45, 3))
sketch1.addConstraint(Sketcher.Constraint("Vertical", 45, 3, 46, 3))
sketch1.addConstraint(Sketcher.Constraint("Vertical", 21, 3, 47, 3))
sketch1.addConstraint(Sketcher.Constraint("Vertical", 46, 3, 48, 3))
sketch1.addConstraint(Sketcher.Constraint("Vertical", 47, 3, 50, 3))
sketch1.addConstraint(Sketcher.Constraint("Diameter", 4, Q("4.3 mm")))
sketch1.addConstraint(Sketcher.Constraint("Diameter", 14, Q("67.7 mm")))
sketch1.addConstraint(Sketcher.Constraint("Diameter", 18, Q("4.25 mm")))
sketch1.addConstraint(Sketcher.Constraint("Diameter", 25, Q("150.25 mm")))
sketch1.addConstraint(Sketcher.Constraint("DistanceX", 1, 1, 1, 2, Q("204 mm")))
sketch1.addConstraint(Sketcher.Constraint("DistanceY", 0, 1, 0, 2, Q("600 mm")))
sketch1.addConstraint(Sketcher.Constraint("DistanceX", 4, 3, -1, 1, Q("92 mm")))
sketch1.addConstraint(Sketcher.Constraint("DistanceY", -1, 1, 4, 3, Q("340 mm")))
sketch1.addConstraint(Sketcher.Constraint("DistanceY", -1, 1, 5, 3, Q("320 mm")))
sketch1.addConstraint(Sketcher.Constraint("DistanceY", -1, 1, 6, 3, Q("300 mm")))
sketch1.addConstraint(Sketcher.Constraint("DistanceY", -1, 1, 7, 3, Q("280 mm")))
sketch1.addConstraint(Sketcher.Constraint("DistanceY", -1, 1, 8, 3, Q("260 mm")))
sketch1.addConstraint(Sketcher.Constraint("DistanceY", -1, 1, 9, 3, Q("240 mm")))
sketch1.addConstraint(Sketcher.Constraint("DistanceY", -1, 1, 10, 3, Q("220 mm")))
sketch1.addConstraint(Sketcher.Constraint("DistanceY", -1, 1, 11, 3, Q("200 mm")))
sketch1.addConstraint(Sketcher.Constraint("DistanceX", 12, 3, -1, 1, Q("34 mm")))
sketch1.addConstraint(Sketcher.Constraint("DistanceY", -1, 1, 15, 3, Q("180 mm")))
sketch1.addConstraint(Sketcher.Constraint("DistanceY", -1, 1, 16, 3, Q("160 mm")))
sketch1.addConstraint(Sketcher.Constraint("DistanceY", -1, 1, 17, 3, Q("140 mm")))
sketch1.addConstraint(Sketcher.Constraint("DistanceX", 18, 3, -1, 1, Q("74 mm")))
sketch1.addConstraint(Sketcher.Constraint("DistanceY", -1, 1, 19, 3, Q("120 mm")))
sketch1.addConstraint(Sketcher.Constraint("DistanceY", -1, 1, 20, 3, Q("100 mm")))
sketch1.addConstraint(Sketcher.Constraint("DistanceY", -1, 1, 22, 3, Q("80 mm")))
sketch1.addConstraint(Sketcher.Constraint("DistanceY", -1, 1, 23, 3, Q("60 mm")))
sketch1.addConstraint(Sketcher.Constraint("DistanceY", -1, 1, 45, 3, Q("40 mm")))
sketch1.addConstraint(Sketcher.Constraint("DistanceY", -1, 1, 46, 3, Q("20 mm")))
sketch1.addConstraint(Sketcher.Constraint("DistanceX", 0, 2, -1, 1, Q("102 mm")))
sketch1.addConstraint(Sketcher.Constraint("DistanceY", -1, 1, 0, 2, Q("350 mm")))
sketch1.addConstraint(Sketcher.Constraint("DistanceY", -1, 1, 12, 3, Q("287.451 mm")))
sketch1.addConstraint(Sketcher.Constraint("DistanceY", -1, 1, 13, 3, Q("219.451 mm")))
sketch1.addConstraint(Sketcher.Constraint("DistanceY", -1, 1, 14, 3, Q("253.451 mm")))
sketch1.addConstraint(Sketcher.Constraint("DistanceY", -1, 1, 18, 3, Q("157.451 mm")))
sketch1.addConstraint(Sketcher.Constraint("DistanceY", -1, 1, 21, 3, Q("115.451 mm")))
sketch1.addConstraint(Sketcher.Constraint("DistanceY", -1, 1, 25, 3, Q("73.451 mm")))
sketch1.addConstraint(Sketcher.Constraint("DistanceY", -1, 1, 47, 3, Q("31.451 mm")))
sketch1.addConstraint(Sketcher.Constraint("DistanceY", 50, 3, -1, 1, Q("10.549 mm")))
pad1 = body.newObject("PartDesign::Pad", "Pad")
pad1.Profile = sketch1
pad1.Length = 3.175
pad1.Reversed = True

doc.recompute()
